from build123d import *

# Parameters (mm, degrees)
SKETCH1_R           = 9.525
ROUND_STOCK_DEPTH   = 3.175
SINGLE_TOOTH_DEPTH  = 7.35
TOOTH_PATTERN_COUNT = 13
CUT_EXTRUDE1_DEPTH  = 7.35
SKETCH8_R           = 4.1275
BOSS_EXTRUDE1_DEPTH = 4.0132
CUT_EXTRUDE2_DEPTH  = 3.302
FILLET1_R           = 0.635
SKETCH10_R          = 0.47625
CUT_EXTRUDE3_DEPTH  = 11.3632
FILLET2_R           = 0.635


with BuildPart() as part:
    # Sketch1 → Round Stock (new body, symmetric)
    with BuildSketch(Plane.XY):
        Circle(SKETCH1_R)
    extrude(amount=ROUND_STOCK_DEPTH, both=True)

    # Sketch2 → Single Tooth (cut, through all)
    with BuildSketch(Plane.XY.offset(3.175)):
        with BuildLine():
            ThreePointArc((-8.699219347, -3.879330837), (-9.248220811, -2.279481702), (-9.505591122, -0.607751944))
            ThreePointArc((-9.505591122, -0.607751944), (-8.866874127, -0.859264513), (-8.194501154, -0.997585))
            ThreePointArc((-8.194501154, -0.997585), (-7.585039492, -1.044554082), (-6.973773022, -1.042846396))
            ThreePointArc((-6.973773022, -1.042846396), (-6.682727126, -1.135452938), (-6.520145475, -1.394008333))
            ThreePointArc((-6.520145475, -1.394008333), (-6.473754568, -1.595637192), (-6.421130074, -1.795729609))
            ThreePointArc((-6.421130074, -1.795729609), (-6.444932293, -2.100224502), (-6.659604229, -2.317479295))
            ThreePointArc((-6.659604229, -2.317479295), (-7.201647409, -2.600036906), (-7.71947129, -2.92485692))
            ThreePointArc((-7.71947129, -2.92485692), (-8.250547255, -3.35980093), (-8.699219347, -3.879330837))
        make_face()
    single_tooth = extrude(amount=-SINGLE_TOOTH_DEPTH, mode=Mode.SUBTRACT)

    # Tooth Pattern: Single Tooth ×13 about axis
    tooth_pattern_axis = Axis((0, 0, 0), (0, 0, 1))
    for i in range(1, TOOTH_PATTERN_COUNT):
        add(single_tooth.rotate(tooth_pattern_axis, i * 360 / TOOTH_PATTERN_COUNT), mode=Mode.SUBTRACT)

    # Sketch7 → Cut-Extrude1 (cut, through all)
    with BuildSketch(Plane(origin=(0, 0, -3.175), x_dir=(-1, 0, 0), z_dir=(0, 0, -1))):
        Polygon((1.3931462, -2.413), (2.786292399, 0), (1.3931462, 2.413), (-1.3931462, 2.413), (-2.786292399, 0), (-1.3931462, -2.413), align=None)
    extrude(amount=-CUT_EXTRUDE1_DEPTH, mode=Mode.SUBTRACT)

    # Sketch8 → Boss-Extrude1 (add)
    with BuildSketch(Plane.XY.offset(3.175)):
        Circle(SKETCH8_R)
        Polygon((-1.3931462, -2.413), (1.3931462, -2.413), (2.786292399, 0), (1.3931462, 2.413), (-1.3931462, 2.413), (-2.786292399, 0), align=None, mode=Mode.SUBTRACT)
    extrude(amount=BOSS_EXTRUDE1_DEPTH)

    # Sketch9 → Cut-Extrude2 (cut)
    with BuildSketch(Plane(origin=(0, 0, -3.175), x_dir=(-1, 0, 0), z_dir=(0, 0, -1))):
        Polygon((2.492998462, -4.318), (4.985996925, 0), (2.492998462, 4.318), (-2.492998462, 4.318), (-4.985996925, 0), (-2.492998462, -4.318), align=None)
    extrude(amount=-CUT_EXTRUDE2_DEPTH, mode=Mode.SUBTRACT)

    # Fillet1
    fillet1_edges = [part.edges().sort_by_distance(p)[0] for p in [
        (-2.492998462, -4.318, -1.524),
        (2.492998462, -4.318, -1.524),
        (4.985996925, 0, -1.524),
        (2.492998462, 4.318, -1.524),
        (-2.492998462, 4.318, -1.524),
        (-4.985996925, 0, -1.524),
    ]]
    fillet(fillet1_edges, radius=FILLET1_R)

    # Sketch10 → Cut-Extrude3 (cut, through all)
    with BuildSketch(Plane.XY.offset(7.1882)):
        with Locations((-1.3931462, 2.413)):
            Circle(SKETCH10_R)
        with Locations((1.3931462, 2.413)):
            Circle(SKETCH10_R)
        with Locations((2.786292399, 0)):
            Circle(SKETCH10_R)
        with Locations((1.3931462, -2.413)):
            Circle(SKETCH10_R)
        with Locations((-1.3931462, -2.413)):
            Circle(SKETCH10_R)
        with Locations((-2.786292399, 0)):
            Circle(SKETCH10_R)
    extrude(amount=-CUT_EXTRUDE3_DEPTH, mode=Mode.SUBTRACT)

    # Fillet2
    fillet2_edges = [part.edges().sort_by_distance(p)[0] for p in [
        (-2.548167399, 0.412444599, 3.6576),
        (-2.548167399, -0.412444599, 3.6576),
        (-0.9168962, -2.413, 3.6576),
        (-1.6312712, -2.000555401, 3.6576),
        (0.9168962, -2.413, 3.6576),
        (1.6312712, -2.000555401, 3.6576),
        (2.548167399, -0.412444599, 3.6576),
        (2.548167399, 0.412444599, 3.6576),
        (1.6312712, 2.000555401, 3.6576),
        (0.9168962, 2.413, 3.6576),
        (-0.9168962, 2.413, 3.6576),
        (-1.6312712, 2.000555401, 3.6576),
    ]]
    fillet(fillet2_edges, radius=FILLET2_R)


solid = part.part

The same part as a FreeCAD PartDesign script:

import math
import FreeCAD as App
import Part
import Sketcher

V = App.Vector
Q = App.Units.Quantity


def edges_at(feature, points):
    """Names of the edges that pass closest to the given points."""
    edges = feature.Shape.Edges
    near = lambda p: min(range(len(edges)), key=lambda i: edges[i].distToShape(Part.Vertex(*p))[0])
    return sorted({f"Edge{near(p) + 1}" for p in points})


def add_polygon(sketch, points):
    """Adds a closed chain of lines whose ends are joined by coincident constraints."""
    first, n = sketch.GeometryCount, len(points)
    for a, b in zip(points, points[1:] + points[:1]):
        sketch.addGeometry(Part.LineSegment(App.Vector(*a, 0), App.Vector(*b, 0)), False)
    for i in range(n):
        sketch.addConstraint(Sketcher.Constraint("Coincident", first + i, 2, first + (i + 1) % n, 1))

doc = App.newDocument("Part")
body = doc.addObject("PartDesign::Body", "Body")

# Sketch on XY plane
sketch1 = doc.addObject("Sketcher::SketchObject", "Sketch")
body.addObject(sketch1)
sketch1.AttachmentSupport = (doc.XY_Plane, [""])
sketch1.MapMode = "FlatFace"
sketch1.addGeometry(Part.Circle(V(0, 0, 0), V(0, 0, 1), 10), False)
sketch1.addConstraint(Sketcher.Constraint("Coincident", 0, 3, -1, 1))
sketch1.addConstraint(Sketcher.Constraint("Diameter", 0, Q("0.75 in")))
pad1 = doc.addObject("PartDesign::Pad", "Pad")
body.addObject(pad1)
pad1.Profile = sketch1
pad1.Length = Q("0.25 in")
pad1.Midplane = True

# Sketch on XY plane
sketch2 = doc.addObject("Sketcher::SketchObject", "Sketch001")
body.addObject(sketch2)
sketch2.AttachmentSupport = (doc.XY_Plane, [""])
sketch2.MapMode = "FlatFace"
sketch2.AttachmentOffset = App.Placement(V(0, 0, 0.125 * 25.4), App.Rotation())
sketch2.addGeometry(Part.ArcOfCircle(Part.Circle(V(0, 0, 0), V(0, 0, 1), 9.52), math.radians(-176), math.radians(-156)), False)
sketch2.addGeometry(Part.ArcOfCircle(Part.Circle(V(-5.47, -6.22, 0), V(0, 0, 1), 3.99), math.radians(124.38), math.radians(144.12)), False)
sketch2.addGeometry(Part.ArcOfCircle(Part.Circle(V(-3.39, -9.26, 0), V(0, 0, 1), 7.67), math.radians(115.25), math.radians(124.38)), False)
sketch2.addGeometry(Part.ArcOfCircle(Part.Circle(V(-6.85, -1.92, 0), V(0, 0, 1), 0.44), math.radians(-65), math.radians(16)), False)
sketch2.addGeometry(Part.ArcOfCircle(Part.Circle(V(0, 0, 0), V(0, 0, 1), 6.67), math.radians(-167.93), math.radians(-164.38)), False)
sketch2.addGeometry(Part.ArcOfCircle(Part.Circle(V(-6.95, -1.49, 0), V(0, 0, 1), 0.44), math.radians(12), math.radians(92)), False)
sketch2.addGeometry(Part.ArcOfCircle(Part.Circle(V(-7.3, 6.62, 0), V(0, 0, 1), 7.67), math.radians(-96.69), math.radians(-87.56)), False)
sketch2.addGeometry(Part.ArcOfCircle(Part.Circle(V(-7.73, 2.97, 0), V(0, 0, 1), 3.99), math.radians(-116.43), math.radians(-96.69)), False)
sketch2.addConstraint(Sketcher.Constraint("Coincident", 0, 2, 1, 2))
sketch2.addConstraint(Sketcher.Constraint("Tangent", 1, 1, 2, 2))
sketch2.addConstraint(Sketcher.Constraint("Tangent", 2, 1, 3, 1))
sketch2.addConstraint(Sketcher.Constraint("Tangent", 3, 2, 4, 2))
sketch2.addConstraint(Sketcher.Constraint("Tangent", 4, 1, 5, 1))
sketch2.addConstraint(Sketcher.Constraint("Tangent", 5, 2, 6, 2))
sketch2.addConstraint(Sketcher.Constraint("Tangent", 6, 1, 7, 2))
sketch2.addConstraint(Sketcher.Constraint("Coincident", 7, 1, 0, 1))
sketch2.addConstraint(Sketcher.Constraint("Coincident", 0, 3, -1, 1))
sketch2.addConstraint(Sketcher.Constraint("Coincident", 4, 3, -1, 1))
sketch2.addConstraint(Sketcher.Constraint("Equal", 3, 5))
sketch2.addConstraint(Sketcher.Constraint("Equal", 2, 6))
sketch2.addConstraint(Sketcher.Constraint("Equal", 1, 7))
sketch2.addConstraint(Sketcher.Constraint("Radius", 0, Q("0.375 in")))
sketch2.addConstraint(Sketcher.Constraint("Radius", 1, Q("0.1571 in")))
sketch2.addConstraint(Sketcher.Constraint("Radius", 3, Q("0.0175 in")))
sketch2.addConstraint(Sketcher.Constraint("Radius", 4, Q("0.2625 in")))
sketch2.addConstraint(Sketcher.Constraint("Radius", 2, Q("7.670867 mm")))
sketch2.addConstraint(Sketcher.Constraint("DistanceX", 0, 2, 2, 1, Q("0.0802998 in")))
sketch2.addConstraint(Sketcher.Constraint("DistanceX", 2, 3, -1, 1, Q("3.387601 mm")))
sketch2.addConstraint(Sketcher.Constraint("DistanceX", 6, 1, -1, 1, Q("8.194501 mm")))
sketch2.addConstraint(Sketcher.Constraint("DistanceY", 0, 2, 3, 2, Q("2.083601 mm")))
sketch2.addConstraint(Sketcher.Constraint("DistanceY", 3, 3, 5, 2, Q("0.872599 mm")))
sketch2.addConstraint(Sketcher.Constraint("DistanceX", 6, 3, -1, 1, Q("7.300819 mm")))
pocket1 = doc.addObject("PartDesign::Pocket", "Pocket")
body.addObject(pocket1)
pocket1.Profile = sketch2
pocket1.Type = "ThroughAll"
doc.recompute()

polarpattern = doc.addObject("PartDesign::PolarPattern", "PolarPattern")
body.addObject(polarpattern)
polarpattern.Originals = [pocket1]
polarpattern.Axis = (doc.Z_Axis, [""])
polarpattern.Angle = 360
polarpattern.Occurrences = 13
body.Tip = polarpattern

# Sketch on XY plane
sketch3 = doc.addObject("Sketcher::SketchObject", "Sketch002")
body.addObject(sketch3)
sketch3.AttachmentSupport = (doc.XY_Plane, [""])
sketch3.MapMode = "FlatFace"
sketch3.AttachmentOffset = App.Placement(V(0, 0, -0.125 * 25.4), App.Rotation())
add_polygon(sketch3, [(-1.4, -2.4), (-2.8, 0), (-1.4, 2.4), (1.4, 2.4), (2.8, 0), (1.4, -2.4)])  # lines 0-5
sketch3.addConstraint(Sketcher.Constraint("Horizontal", 2))
sketch3.addConstraint(Sketcher.Constraint("Horizontal", 5))
sketch3.addConstraint(Sketcher.Constraint("Symmetric", 0, 2, 3, 2, -1, 1))
sketch3.addConstraint(Sketcher.Constraint("Symmetric", 1, 2, 4, 2, -1, 1))
sketch3.addConstraint(Sketcher.Constraint("PointOnObject", 0, 2, -1))
sketch3.addConstraint(Sketcher.Constraint("Parallel", 0, 3))
sketch3.addConstraint(Sketcher.Constraint("Vertical", 2, 2, 4, 2))
sketch3.addConstraint(Sketcher.Constraint("Angle", 0, Q("120 deg")))
sketch3.addConstraint(Sketcher.Constraint("DistanceY", 4, 2, 2, 2, Q("0.19 in")))
sketch3.addConstraint(Sketcher.Constraint("DistanceX", 2, 1, 2, 2, Q("2.786292 mm")))
pocket2 = doc.addObject("PartDesign::Pocket", "Pocket001")
body.addObject(pocket2)
pocket2.Profile = sketch3
pocket2.Type = "ThroughAll"
pocket2.Reversed = True

# Sketch on XY plane
sketch4 = doc.addObject("Sketcher::SketchObject", "Sketch003")
body.addObject(sketch4)
sketch4.AttachmentSupport = (doc.XY_Plane, [""])
sketch4.MapMode = "FlatFace"
sketch4.AttachmentOffset = App.Placement(V(0, 0, 0.125 * 25.4), App.Rotation())
sketch4.addGeometry(Part.Circle(V(0, 0, 0), V(0, 0, 1), 4.1), False)  # 0
add_polygon(sketch4, [(1.4, -2.4), (-1.4, -2.4), (-2.8, 0), (-1.4, 2.4), (1.4, 2.4), (2.8, 0)])  # lines 1-6
sketch4.addConstraint(Sketcher.Constraint("Horizontal", 1))
sketch4.addConstraint(Sketcher.Constraint("Horizontal", 4))
sketch4.addConstraint(Sketcher.Constraint("Coincident", 0, 3, -1, 1))
sketch4.addConstraint(Sketcher.Constraint("Symmetric", 1, 2, 4, 2, -1, 1))
sketch4.addConstraint(Sketcher.Constraint("Symmetric", 2, 2, 5, 2, -1, 1))
sketch4.addConstraint(Sketcher.Constraint("PointOnObject", 2, 2, -1))
sketch4.addConstraint(Sketcher.Constraint("Parallel", 3, 6))
sketch4.addConstraint(Sketcher.Constraint("Vertical", 1, 2, 3, 2))
sketch4.addConstraint(Sketcher.Constraint("Diameter", 0, Q("0.325 in")))
sketch4.addConstraint(Sketcher.Constraint("Angle", 2, Q("120 deg")))
sketch4.addConstraint(Sketcher.Constraint("DistanceY", 1, 2, 3, 2, Q("0.19 in")))
sketch4.addConstraint(Sketcher.Constraint("DistanceX", 1, 2, 1, 1, Q("2.786292 mm")))
pad2 = doc.addObject("PartDesign::Pad", "Pad001")
body.addObject(pad2)
pad2.Profile = sketch4
pad2.Length = Q("0.158 in")

# Sketch on XY plane
sketch5 = doc.addObject("Sketcher::SketchObject", "Sketch004")
body.addObject(sketch5)
sketch5.AttachmentSupport = (doc.XY_Plane, [""])
sketch5.MapMode = "FlatFace"
sketch5.AttachmentOffset = App.Placement(V(0, 0, -0.125 * 25.4), App.Rotation())
add_polygon(sketch5, [(-2.5, -4.3), (-5, 0), (-2.5, 4.3), (2.5, 4.3), (5, 0), (2.5, -4.3)])  # lines 0-5
sketch5.addConstraint(Sketcher.Constraint("Horizontal", 2))
sketch5.addConstraint(Sketcher.Constraint("Horizontal", 5))
sketch5.addConstraint(Sketcher.Constraint("Symmetric", 0, 2, 3, 2, -1, 1))
sketch5.addConstraint(Sketcher.Constraint("Symmetric", 1, 2, 4, 2, -1, 1))
sketch5.addConstraint(Sketcher.Constraint("PointOnObject", 0, 2, -1))
sketch5.addConstraint(Sketcher.Constraint("Parallel", 0, 3))
sketch5.addConstraint(Sketcher.Constraint("Vertical", 2, 2, 4, 2))
sketch5.addConstraint(Sketcher.Constraint("Angle", 0, Q("120 deg")))
sketch5.addConstraint(Sketcher.Constraint("DistanceY", -1, 1, 1, 2, Q("0.17 in")))
sketch5.addConstraint(Sketcher.Constraint("DistanceX", 1, 2, -1, 1, Q("2.492998 mm")))
pocket3 = doc.addObject("PartDesign::Pocket", "Pocket002")
body.addObject(pocket3)
pocket3.Profile = sketch5
pocket3.Length = Q("0.13 in")
pocket3.Reversed = True
doc.recompute()

fillet = doc.addObject("PartDesign::Fillet", "Fillet")
body.addObject(fillet)
fillet.Base = (pocket3, edges_at(pocket3, [
    (-2.493, -4.318, -1.524),
    (2.493, -4.318, -1.524),
    (4.986, 0, -1.524),
    (2.493, 4.318, -1.524),
    (-2.493, 4.318, -1.524),
    (-4.986, 0, -1.524),
]))
fillet.Radius = Q("0.025 in")

# Sketch on XY plane
sketch6 = doc.addObject("Sketcher::SketchObject", "Sketch005")
body.addObject(sketch6)
sketch6.AttachmentSupport = (doc.XY_Plane, [""])
sketch6.MapMode = "FlatFace"
sketch6.AttachmentOffset = App.Placement(V(0, 0, 0.283 * 25.4), App.Rotation())
sketch6.addGeometry(Part.Circle(V(-1.39, 2.41, 0), V(0, 0, 1), 0.48), False)
sketch6.addGeometry(Part.Circle(V(1.39, 2.41, 0), V(0, 0, 1), 0.48), False)
sketch6.addGeometry(Part.Circle(V(2.79, 0, 0), V(0, 0, 1), 0.48), False)
sketch6.addGeometry(Part.Circle(V(1.39, -2.41, 0), V(0, 0, 1), 0.48), False)
sketch6.addGeometry(Part.Circle(V(-1.39, -2.41, 0), V(0, 0, 1), 0.48), False)
sketch6.addGeometry(Part.Circle(V(-2.79, 0, 0), V(0, 0, 1), 0.48), False)
sketch6.addConstraint(Sketcher.Constraint("Equal", 0, 1))
sketch6.addConstraint(Sketcher.Constraint("Equal", 1, 2))
sketch6.addConstraint(Sketcher.Constraint("Equal", 2, 3))
sketch6.addConstraint(Sketcher.Constraint("Equal", 3, 4))
sketch6.addConstraint(Sketcher.Constraint("Equal", 4, 5))
sketch6.addConstraint(Sketcher.Constraint("Symmetric", 0, 3, 3, 3, -1, 1))
sketch6.addConstraint(Sketcher.Constraint("Symmetric", 1, 3, 4, 3, -1, 1))
sketch6.addConstraint(Sketcher.Constraint("Symmetric", 2, 3, 5, 3, -1, 1))
sketch6.addConstraint(Sketcher.Constraint("Symmetric", 0, 3, 1, 3, -2))
sketch6.addConstraint(Sketcher.Constraint("PointOnObject", 2, 3, -1))
sketch6.addConstraint(Sketcher.Constraint("Diameter", 0, Q("0.0375 in")))
sketch6.addConstraint(Sketcher.Constraint("DistanceY", 3, 3, 1, 3, Q("0.19 in")))
sketch6.addConstraint(Sketcher.Constraint("DistanceX", 0, 3, 2, 3, Q("4.179439 mm")))
sketch6.addConstraint(Sketcher.Constraint("DistanceX", 0, 3, -1, 1, Q("1.393146 mm")))
pocket4 = doc.addObject("PartDesign::Pocket", "Pocket003")
body.addObject(pocket4)
pocket4.Profile = sketch6
pocket4.Type = "ThroughAll"
doc.recompute()

fillet2 = doc.addObject("PartDesign::Fillet", "Fillet001")
body.addObject(fillet2)
fillet2.Base = (pocket4, edges_at(pocket4, [
    (-2.548, 0.412, 3.658),
    (-2.548, -0.412, 3.658),
    (-0.917, -2.413, 3.658),
    (-1.631, -2.001, 3.658),
    (0.917, -2.413, 3.658),
    (1.631, -2.001, 3.658),
    (2.548, -0.412, 3.658),
    (2.548, 0.412, 3.658),
    (1.631, 2.001, 3.658),
    (0.917, 2.413, 3.658),
    (-0.917, 2.413, 3.658),
    (-1.631, 2.001, 3.658),
]))
fillet2.Radius = Q("0.025 in")

doc.recompute()
